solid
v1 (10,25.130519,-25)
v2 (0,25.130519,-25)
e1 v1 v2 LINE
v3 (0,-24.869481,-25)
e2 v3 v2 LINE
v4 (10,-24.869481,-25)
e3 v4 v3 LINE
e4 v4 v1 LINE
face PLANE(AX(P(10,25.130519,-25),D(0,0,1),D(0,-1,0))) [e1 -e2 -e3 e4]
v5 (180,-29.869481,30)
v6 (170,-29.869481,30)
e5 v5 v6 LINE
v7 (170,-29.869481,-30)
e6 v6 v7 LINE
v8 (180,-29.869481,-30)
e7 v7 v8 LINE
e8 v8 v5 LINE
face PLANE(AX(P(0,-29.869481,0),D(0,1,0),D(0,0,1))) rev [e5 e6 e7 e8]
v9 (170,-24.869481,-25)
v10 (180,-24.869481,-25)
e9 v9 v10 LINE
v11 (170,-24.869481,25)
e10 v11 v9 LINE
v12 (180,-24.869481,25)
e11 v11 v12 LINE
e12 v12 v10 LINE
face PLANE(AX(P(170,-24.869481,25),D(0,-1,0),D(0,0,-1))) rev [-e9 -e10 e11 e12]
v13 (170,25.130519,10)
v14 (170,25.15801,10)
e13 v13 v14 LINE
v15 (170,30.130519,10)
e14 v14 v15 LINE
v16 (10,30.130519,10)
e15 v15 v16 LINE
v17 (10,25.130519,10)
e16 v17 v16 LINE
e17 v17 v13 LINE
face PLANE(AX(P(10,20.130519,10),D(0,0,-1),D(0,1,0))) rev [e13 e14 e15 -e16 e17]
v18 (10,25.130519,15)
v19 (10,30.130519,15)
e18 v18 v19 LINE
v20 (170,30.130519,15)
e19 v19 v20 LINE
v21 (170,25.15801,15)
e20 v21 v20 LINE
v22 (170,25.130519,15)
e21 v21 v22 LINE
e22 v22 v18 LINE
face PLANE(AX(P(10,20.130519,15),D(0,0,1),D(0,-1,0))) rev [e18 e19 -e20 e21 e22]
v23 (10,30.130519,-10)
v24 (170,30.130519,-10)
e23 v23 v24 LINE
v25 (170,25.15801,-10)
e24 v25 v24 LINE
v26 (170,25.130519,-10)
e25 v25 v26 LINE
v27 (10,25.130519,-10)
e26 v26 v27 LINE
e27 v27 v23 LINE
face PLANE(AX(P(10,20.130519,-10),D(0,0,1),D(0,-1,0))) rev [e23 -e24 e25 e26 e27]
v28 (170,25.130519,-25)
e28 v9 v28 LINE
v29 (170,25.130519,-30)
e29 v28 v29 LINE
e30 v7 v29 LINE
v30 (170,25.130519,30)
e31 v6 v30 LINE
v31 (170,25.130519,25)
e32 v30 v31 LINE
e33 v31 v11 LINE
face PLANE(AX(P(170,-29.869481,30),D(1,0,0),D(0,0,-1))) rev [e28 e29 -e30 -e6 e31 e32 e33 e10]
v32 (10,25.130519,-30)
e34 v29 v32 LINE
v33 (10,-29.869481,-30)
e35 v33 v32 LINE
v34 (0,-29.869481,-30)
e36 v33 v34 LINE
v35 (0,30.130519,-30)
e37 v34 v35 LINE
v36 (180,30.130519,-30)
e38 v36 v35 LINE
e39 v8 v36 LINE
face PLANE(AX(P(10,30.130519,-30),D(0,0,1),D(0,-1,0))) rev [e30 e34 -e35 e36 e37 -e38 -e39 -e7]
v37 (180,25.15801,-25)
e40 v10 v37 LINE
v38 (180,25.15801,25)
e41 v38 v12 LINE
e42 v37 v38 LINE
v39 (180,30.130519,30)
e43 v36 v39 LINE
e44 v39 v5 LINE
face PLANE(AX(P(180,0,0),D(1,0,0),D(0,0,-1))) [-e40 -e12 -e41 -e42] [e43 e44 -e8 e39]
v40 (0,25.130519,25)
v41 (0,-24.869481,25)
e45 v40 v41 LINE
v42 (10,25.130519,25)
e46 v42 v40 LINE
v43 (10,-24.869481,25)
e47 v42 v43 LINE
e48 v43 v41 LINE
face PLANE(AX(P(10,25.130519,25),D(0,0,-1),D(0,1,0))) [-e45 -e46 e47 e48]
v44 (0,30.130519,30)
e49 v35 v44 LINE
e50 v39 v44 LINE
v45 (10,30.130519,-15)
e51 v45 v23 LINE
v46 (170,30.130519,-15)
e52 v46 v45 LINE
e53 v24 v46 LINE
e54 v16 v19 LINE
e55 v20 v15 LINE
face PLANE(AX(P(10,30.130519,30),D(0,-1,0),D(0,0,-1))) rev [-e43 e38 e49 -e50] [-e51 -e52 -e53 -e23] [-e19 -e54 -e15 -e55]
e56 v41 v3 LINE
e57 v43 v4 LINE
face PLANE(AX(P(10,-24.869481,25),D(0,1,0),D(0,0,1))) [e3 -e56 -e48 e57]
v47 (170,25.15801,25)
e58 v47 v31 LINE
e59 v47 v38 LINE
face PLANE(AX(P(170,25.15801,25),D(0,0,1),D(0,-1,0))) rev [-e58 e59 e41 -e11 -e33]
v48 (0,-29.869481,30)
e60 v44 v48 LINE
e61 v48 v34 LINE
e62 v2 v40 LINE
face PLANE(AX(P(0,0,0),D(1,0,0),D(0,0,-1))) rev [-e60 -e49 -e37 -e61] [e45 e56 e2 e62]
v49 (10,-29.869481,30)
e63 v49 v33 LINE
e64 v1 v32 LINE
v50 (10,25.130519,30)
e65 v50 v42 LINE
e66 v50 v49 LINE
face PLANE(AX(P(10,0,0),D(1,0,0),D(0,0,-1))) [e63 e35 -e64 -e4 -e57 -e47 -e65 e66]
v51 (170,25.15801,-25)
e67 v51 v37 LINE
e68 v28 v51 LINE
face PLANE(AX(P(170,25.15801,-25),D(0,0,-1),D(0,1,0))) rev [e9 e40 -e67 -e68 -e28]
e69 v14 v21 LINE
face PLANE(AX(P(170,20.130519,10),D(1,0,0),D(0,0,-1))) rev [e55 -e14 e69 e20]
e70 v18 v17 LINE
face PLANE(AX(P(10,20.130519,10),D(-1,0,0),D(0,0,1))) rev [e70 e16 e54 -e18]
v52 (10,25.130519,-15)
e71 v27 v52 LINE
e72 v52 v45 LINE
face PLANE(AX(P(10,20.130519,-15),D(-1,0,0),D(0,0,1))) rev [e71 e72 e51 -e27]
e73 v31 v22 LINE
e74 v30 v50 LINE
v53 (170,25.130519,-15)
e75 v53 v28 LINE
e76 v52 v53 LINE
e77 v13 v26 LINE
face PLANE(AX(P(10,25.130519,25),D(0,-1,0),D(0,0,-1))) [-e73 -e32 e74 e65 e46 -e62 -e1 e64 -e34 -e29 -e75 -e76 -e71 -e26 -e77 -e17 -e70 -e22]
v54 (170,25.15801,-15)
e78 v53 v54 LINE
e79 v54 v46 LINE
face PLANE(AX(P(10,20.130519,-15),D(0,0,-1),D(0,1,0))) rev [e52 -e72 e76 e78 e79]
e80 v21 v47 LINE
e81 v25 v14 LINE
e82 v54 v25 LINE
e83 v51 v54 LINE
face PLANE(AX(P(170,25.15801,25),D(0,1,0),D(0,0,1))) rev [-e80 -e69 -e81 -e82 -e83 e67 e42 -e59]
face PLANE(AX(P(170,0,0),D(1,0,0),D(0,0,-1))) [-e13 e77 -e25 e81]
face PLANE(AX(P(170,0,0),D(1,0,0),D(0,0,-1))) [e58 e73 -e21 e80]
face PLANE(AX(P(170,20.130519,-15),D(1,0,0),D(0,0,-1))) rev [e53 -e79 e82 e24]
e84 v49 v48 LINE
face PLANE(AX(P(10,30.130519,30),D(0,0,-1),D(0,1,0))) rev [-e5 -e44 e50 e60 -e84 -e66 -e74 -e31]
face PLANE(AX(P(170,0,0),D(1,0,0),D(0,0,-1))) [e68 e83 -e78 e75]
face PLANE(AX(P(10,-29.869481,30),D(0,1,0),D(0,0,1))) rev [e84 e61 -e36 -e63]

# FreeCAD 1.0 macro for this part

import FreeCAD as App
import Part
import Sketcher
Q = App.Units.Quantity

doc = App.newDocument("Part")
body = doc.addObject("PartDesign::Body", "Body")

# Sketch on YZ plane
sketch1 = body.newObject("Sketcher::SketchObject", "Sketch")
sketch1.AttachmentSupport = (doc.getObject("YZ_Plane"), [""])
sketch1.MapMode = "FlatFace"
sketch1.addGeometry([
    Part.LineSegment(App.Vector(30, 30, 0), App.Vector(-30, 30, 0)),  # 0
    Part.LineSegment(App.Vector(-30, 30, 0), App.Vector(-30, -30, 0)),  # 1
    Part.LineSegment(App.Vector(-30, -30, 0), App.Vector(30, -30, 0)),  # 2
    Part.LineSegment(App.Vector(30, -30, 0), App.Vector(30, 30, 0)),  # 3
    Part.LineSegment(App.Vector(-25, -25, 0), App.Vector(-25, 25, 0)),  # 4
    Part.LineSegment(App.Vector(-25, 25, 0), App.Vector(25, 25, 0)),  # 5
    Part.LineSegment(App.Vector(25, 25, 0), App.Vector(25, -25, 0)),  # 6
    Part.LineSegment(App.Vector(25, -25, 0), App.Vector(-25, -25, 0)),  # 7
], False)
sketch1.addConstraint([
    Sketcher.Constraint("Coincident", 0, 2, 1, 1),
    Sketcher.Constraint("Coincident", 1, 2, 2, 1),
    Sketcher.Constraint("Coincident", 2, 2, 3, 1),
    Sketcher.Constraint("Coincident", 3, 2, 0, 1),
    Sketcher.Constraint("Coincident", 4, 2, 5, 1),
    Sketcher.Constraint("Coincident", 5, 2, 6, 1),
    Sketcher.Constraint("Coincident", 6, 2, 7, 1),
    Sketcher.Constraint("Coincident", 7, 2, 4, 1),
    Sketcher.Constraint("Horizontal", 0),
    Sketcher.Constraint("Vertical", 1),
    Sketcher.Constraint("Horizontal", 2),
    Sketcher.Constraint("Vertical", 3),
    Sketcher.Constraint("Vertical", 4),
    Sketcher.Constraint("Horizontal", 5),
    Sketcher.Constraint("Vertical", 6),
    Sketcher.Constraint("Horizontal", 7),
    Sketcher.Constraint("Equal", 2, 1),
    Sketcher.Constraint("Equal", 7, 4),
    Sketcher.Constraint("DistanceX", 0, 2, 0, 1, Q("60 mm")),
    Sketcher.Constraint("DistanceX", 5, 1, 5, 2, Q("50 mm")),
    Sketcher.Constraint("DistanceY", -1, 1, 0, 2, Q("30 mm")),
    Sketcher.Constraint("DistanceY", -1, 1, 4, 2, Q("25 mm")),
    Sketcher.Constraint("DistanceX", 0, 2, 4, 2, Q("5 mm")),
    Sketcher.Constraint("DistanceX", 0, 2, -1, 1, Q("29.869481 mm")),
])
pad1 = body.newObject("PartDesign::Pad", "Pad")
pad1.Profile = sketch1
pad1.Length = 10

# Sketch on YZ plane
sketch2 = body.newObject("Sketcher::SketchObject", "Sketch001")
sketch2.AttachmentSupport = (doc.getObject("YZ_Plane"), [""])
sketch2.MapMode = "FlatFace"
sketch2.AttachmentOffset = App.Placement(App.Vector(0, 0, 10), App.Rotation())
sketch2.addGeometry([
    Part.LineSegment(App.Vector(30, 30, 0), App.Vector(25, 30, 0)),
    Part.LineSegment(App.Vector(25, 30, 0), App.Vector(25, -30, 0)),
    Part.LineSegment(App.Vector(25, -30, 0), App.Vector(30, -30, 0)),
    Part.LineSegment(App.Vector(30, -30, 0), App.Vector(30, 30, 0)),
], False)
sketch2.addConstraint([
    Sketcher.Constraint("Coincident", 0, 2, 1, 1),
    Sketcher.Constraint("Coincident", 1, 2, 2, 1),
    Sketcher.Constraint("Coincident", 2, 2, 3, 1),
    Sketcher.Constraint("Coincident", 3, 2, 0, 1),
    Sketcher.Constraint("Horizontal", 0),
    Sketcher.Constraint("Vertical", 1),
    Sketcher.Constraint("Horizontal", 2),
    Sketcher.Constraint("Vertical", 3),
    Sketcher.Constraint("DistanceX", 0, 2, 0, 1, Q("5 mm")),
    Sketcher.Constraint("DistanceY", 1, 2, 1, 1, Q("60 mm")),
    Sketcher.Constraint("DistanceY", -1, 1, 0, 2, Q("30 mm")),
    Sketcher.Constraint("DistanceX", -1, 1, 0, 2, Q("25.130519 mm")),
])
pad2 = body.newObject("PartDesign::Pad", "Pad001")
pad2.Profile = sketch2
pad2.Length = 170

# Sketch on XZ plane
sketch3 = body.newObject("Sketcher::SketchObject", "Sketch002")
sketch3.AttachmentSupport = (doc.getObject("XZ_Plane"), [""])
sketch3.MapMode = "FlatFace"
sketch3.AttachmentOffset = App.Placement(App.Vector(0, 0, -25.130519), App.Rotation())
sketch3.addGeometry([
    Part.LineSegment(App.Vector(170, 30, 0), App.Vector(170, -30, 0)),
    Part.LineSegment(App.Vector(170, -30, 0), App.Vector(180, -30, 0)),
    Part.LineSegment(App.Vector(180, -30, 0), App.Vector(180, 30, 0)),
    Part.LineSegment(App.Vector(180, 30, 0), App.Vector(170, 30, 0)),
], False)
sketch3.addConstraint([
    Sketcher.Constraint("Coincident", 0, 2, 1, 1),
    Sketcher.Constraint("Coincident", 1, 2, 2, 1),
    Sketcher.Constraint("Coincident", 2, 2, 3, 1),
    Sketcher.Constraint("Coincident", 3, 2, 0, 1),
    Sketcher.Constraint("Vertical", 0),
    Sketcher.Constraint("Horizontal", 1),
    Sketcher.Constraint("Vertical", 2),
    Sketcher.Constraint("Horizontal", 3),
    Sketcher.Constraint("DistanceX", 1, 1, 1, 2, Q("10 mm")),
    Sketcher.Constraint("DistanceY", 0, 2, 0, 1, Q("60 mm")),
    Sketcher.Constraint("DistanceX", -1, 1, 0, 2, Q("170 mm")),
    Sketcher.Constraint("DistanceY", 0, 2, -1, 1, Q("30 mm")),
])
pad3 = body.newObject("PartDesign::Pad", "Pad002")
pad3.Profile = sketch3
pad3.Length = 55

# Sketch on YZ plane
sketch4 = body.newObject("Sketcher::SketchObject", "Sketch003")
sketch4.AttachmentSupport = (doc.getObject("YZ_Plane"), [""])
sketch4.MapMode = "FlatFace"
sketch4.AttachmentOffset = App.Placement(App.Vector(0, 0, 180), App.Rotation())
sketch4.addGeometry([
    Part.LineSegment(App.Vector(25, 25, 0), App.Vector(-25, 25, 0)),
    Part.LineSegment(App.Vector(-25, 25, 0), App.Vector(-25, -25, 0)),
    Part.LineSegment(App.Vector(-25, -25, 0), App.Vector(25, -25, 0)),
    Part.LineSegment(App.Vector(25, -25, 0), App.Vector(25, 25, 0)),
], False)
sketch4.addConstraint([
    Sketcher.Constraint("Coincident", 0, 2, 1, 1),
    Sketcher.Constraint("Coincident", 1, 2, 2, 1),
    Sketcher.Constraint("Coincident", 2, 2, 3, 1),
    Sketcher.Constraint("Coincident", 3, 2, 0, 1),
    Sketcher.Constraint("Horizontal", 0),
    Sketcher.Constraint("Vertical", 1),
    Sketcher.Constraint("Horizontal", 2),
    Sketcher.Constraint("Vertical", 3),
    Sketcher.Constraint("DistanceY", 1, 2, 1, 1, Q("50 mm")),
    Sketcher.Constraint("DistanceY", -1, 1, 0, 2, Q("25 mm")),
    Sketcher.Constraint("DistanceX", 0, 2, 0, 1, Q("50.027491 mm")),
    Sketcher.Constraint("DistanceX", 0, 2, -1, 1, Q("24.869481 mm")),
])
pocket1 = body.newObject("PartDesign::Pocket", "Pocket")
pocket1.Profile = sketch4
pocket1.Length = 10

# Sketch on XZ plane
sketch5 = body.newObject("Sketcher::SketchObject", "Sketch004")
sketch5.AttachmentSupport = (doc.getObject("XZ_Plane"), [""])
sketch5.MapMode = "FlatFace"
sketch5.AttachmentOffset = App.Placement(App.Vector(0, 0, -30.130519), App.Rotation())
sketch5.addGeometry([
    Part.LineSegment(App.Vector(10, -15, 0), App.Vector(10, -10, 0)),  # 0
    Part.LineSegment(App.Vector(10, -10, 0), App.Vector(170, -10, 0)),  # 1
    Part.LineSegment(App.Vector(170, -10, 0), App.Vector(170, -15, 0)),  # 2
    Part.LineSegment(App.Vector(170, -15, 0), App.Vector(10, -15, 0)),  # 3
    Part.LineSegment(App.Vector(10, 10, 0), App.Vector(10, 15, 0)),  # 4
    Part.LineSegment(App.Vector(10, 15, 0), App.Vector(170, 15, 0)),  # 5
    Part.LineSegment(App.Vector(170, 15, 0), App.Vector(170, 10, 0)),  # 6
    Part.LineSegment(App.Vector(170, 10, 0), App.Vector(10, 10, 0)),  # 7
], False)
sketch5.addConstraint([
    Sketcher.Constraint("Coincident", 0, 2, 1, 1),
    Sketcher.Constraint("Coincident", 1, 2, 2, 1),
    Sketcher.Constraint("Coincident", 2, 2, 3, 1),
    Sketcher.Constraint("Coincident", 3, 2, 0, 1),
    Sketcher.Constraint("Coincident", 4, 2, 5, 1),
    Sketcher.Constraint("Coincident", 5, 2, 6, 1),
    Sketcher.Constraint("Coincident", 6, 2, 7, 1),
    Sketcher.Constraint("Coincident", 7, 2, 4, 1),
    Sketcher.Constraint("Vertical", 0),
    Sketcher.Constraint("Horizontal", 1),
    Sketcher.Constraint("Vertical", 2),
    Sketcher.Constraint("Horizontal", 3),
    Sketcher.Constraint("Vertical", 4),
    Sketcher.Constraint("Horizontal", 5),
    Sketcher.Constraint("Vertical", 6),
    Sketcher.Constraint("Horizontal", 7),
    Sketcher.Constraint("Symmetric", 3, 2, 4, 2, -1),
    Sketcher.Constraint("Symmetric", 1, 2, 6, 2, -1),
    Sketcher.Constraint("DistanceX", 1, 1, 1, 2, Q("160 mm")),
    Sketcher.Constraint("DistanceY", 0, 1, 0, 2, Q("5 mm")),
    Sketcher.Constraint("DistanceX", -1, 1, 0, 2, Q("10 mm")),
    Sketcher.Constraint("DistanceY", 0, 2, -1, 1, Q("10 mm")),
])
pocket2 = body.newObject("PartDesign::Pocket", "Pocket001")
pocket2.Profile = sketch5
pocket2.Length = 10
pocket2.Reversed = True

doc.recompute()
